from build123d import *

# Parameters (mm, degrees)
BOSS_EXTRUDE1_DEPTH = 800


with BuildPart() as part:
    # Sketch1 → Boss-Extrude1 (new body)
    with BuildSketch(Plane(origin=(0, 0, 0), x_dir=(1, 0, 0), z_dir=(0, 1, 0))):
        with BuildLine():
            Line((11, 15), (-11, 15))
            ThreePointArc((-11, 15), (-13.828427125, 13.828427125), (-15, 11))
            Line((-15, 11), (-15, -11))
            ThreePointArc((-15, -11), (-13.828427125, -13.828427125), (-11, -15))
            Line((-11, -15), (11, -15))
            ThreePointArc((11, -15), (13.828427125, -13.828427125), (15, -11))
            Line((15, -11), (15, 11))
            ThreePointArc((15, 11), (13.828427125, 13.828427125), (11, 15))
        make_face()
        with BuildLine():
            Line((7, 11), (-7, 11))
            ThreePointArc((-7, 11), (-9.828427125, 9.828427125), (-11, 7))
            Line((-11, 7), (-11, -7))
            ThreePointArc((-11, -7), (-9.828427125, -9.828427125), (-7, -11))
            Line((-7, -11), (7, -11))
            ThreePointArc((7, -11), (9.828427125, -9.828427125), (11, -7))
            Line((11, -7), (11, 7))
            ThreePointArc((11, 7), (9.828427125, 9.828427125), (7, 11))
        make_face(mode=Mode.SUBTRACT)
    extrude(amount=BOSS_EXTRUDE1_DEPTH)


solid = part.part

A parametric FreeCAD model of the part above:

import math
import FreeCAD as App
import Part
import Sketcher

doc = App.newDocument("Part")
params = doc.addObject("Spreadsheet::Sheet", "Params")
for row, (alias, value) in enumerate([
    ("sketch1_radius", "4 mm"),
    ("sketch1_width", "22 mm"),
    ("pad1_length", "800 mm"),
], start=1):
    params.set(f"A{row}", alias)
    params.set(f"B{row}", "=" + value)
    params.setAlias(f"B{row}", alias)

body = doc.addObject("PartDesign::Body", "Body")

sketch1 = body.newObject("Sketcher::SketchObject", "Sketch")
sketch1.AttachmentSupport = (doc.getObject("XZ_Plane"), [""])
sketch1.MapMode = "FlatFace"
sketch1.addGeometry(Part.LineSegment(App.Vector(11, -15, 0), App.Vector(-11, -15, 0)), False)
sketch1.addGeometry(Part.ArcOfCircle(Part.Circle(App.Vector(-11, -11, 0), App.Vector(0, 0, 1), 4), math.radians(180), math.radians(270)), False)
sketch1.addGeometry(Part.LineSegment(App.Vector(-15, -11, 0), App.Vector(-15, 11, 0)), False)
sketch1.addGeometry(Part.ArcOfCircle(Part.Circle(App.Vector(-11, 11, 0), App.Vector(0, 0, 1), 4), math.radians(90), math.radians(180)), False)
sketch1.addGeometry(Part.LineSegment(App.Vector(-11, 15, 0), App.Vector(11, 15, 0)), False)
sketch1.addGeometry(Part.ArcOfCircle(Part.Circle(App.Vector(11, 11, 0), App.Vector(0, 0, 1), 4), math.radians(0), math.radians(90)), False)
sketch1.addGeometry(Part.LineSegment(App.Vector(15, 11, 0), App.Vector(15, -11, 0)), False)
sketch1.addGeometry(Part.ArcOfCircle(Part.Circle(App.Vector(11, -11, 0), App.Vector(0, 0, 1), 4), math.radians(-90), math.radians(0)), False)
sketch1.addGeometry(Part.LineSegment(App.Vector(-7, -11, 0), App.Vector(7, -11, 0)), False)
sketch1.addGeometry(Part.ArcOfCircle(Part.Circle(App.Vector(7, -7, 0), App.Vector(0, 0, 1), 4), math.radians(-90), math.radians(0)), False)
sketch1.addGeometry(Part.LineSegment(App.Vector(11, -7, 0), App.Vector(11, 7, 0)), False)
sketch1.addGeometry(Part.ArcOfCircle(Part.Circle(App.Vector(7, 7, 0), App.Vector(0, 0, 1), 4), math.radians(0), math.radians(90)), False)
sketch1.addGeometry(Part.LineSegment(App.Vector(7, 11, 0), App.Vector(-7, 11, 0)), False)
sketch1.addGeometry(Part.ArcOfCircle(Part.Circle(App.Vector(-7, 7, 0), App.Vector(0, 0, 1), 4), math.radians(90), math.radians(180)), False)
sketch1.addGeometry(Part.LineSegment(App.Vector(-11, 7, 0), App.Vector(-11, -7, 0)), False)
sketch1.addGeometry(Part.ArcOfCircle(Part.Circle(App.Vector(-7, -7, 0), App.Vector(0, 0, 1), 4), math.radians(180), math.radians(270)), False)
sketch1.addConstraint(Sketcher.Constraint("Tangent", 0, 2, 1, 2))
sketch1.addConstraint(Sketcher.Constraint("Tangent", 1, 1, 2, 1))
sketch1.addConstraint(Sketcher.Constraint("Tangent", 2, 2, 3, 2))
sketch1.addConstraint(Sketcher.Constraint("Tangent", 3, 1, 4, 1))
sketch1.addConstraint(Sketcher.Constraint("Tangent", 4, 2, 5, 2))
sketch1.addConstraint(Sketcher.Constraint("Tangent", 5, 1, 6, 1))
sketch1.addConstraint(Sketcher.Constraint("Tangent", 6, 2, 7, 2))
sketch1.addConstraint(Sketcher.Constraint("Tangent", 7, 1, 0, 1))
sketch1.addConstraint(Sketcher.Constraint("Tangent", 8, 2, 9, 1))
sketch1.addConstraint(Sketcher.Constraint("Tangent", 9, 2, 10, 1))
sketch1.addConstraint(Sketcher.Constraint("Tangent", 10, 2, 11, 1))
sketch1.addConstraint(Sketcher.Constraint("Tangent", 11, 2, 12, 1))
sketch1.addConstraint(Sketcher.Constraint("Tangent", 12, 2, 13, 1))
sketch1.addConstraint(Sketcher.Constraint("Tangent", 13, 2, 14, 1))
sketch1.addConstraint(Sketcher.Constraint("Tangent", 14, 2, 15, 1))
sketch1.addConstraint(Sketcher.Constraint("Tangent", 15, 2, 8, 1))
sketch1.addConstraint(Sketcher.Constraint("Horizontal", 0))
sketch1.addConstraint(Sketcher.Constraint("Vertical", 2))
sketch1.addConstraint(Sketcher.Constraint("Horizontal", 4))
sketch1.addConstraint(Sketcher.Constraint("Vertical", 6))
sketch1.addConstraint(Sketcher.Constraint("Horizontal", 8))
sketch1.addConstraint(Sketcher.Constraint("Vertical", 10))
sketch1.addConstraint(Sketcher.Constraint("Horizontal", 12))
sketch1.addConstraint(Sketcher.Constraint("Vertical", 14))
sketch1.addConstraint(Sketcher.Constraint("Equal", 1, 3))
sketch1.addConstraint(Sketcher.Constraint("Equal", 3, 5))
sketch1.addConstraint(Sketcher.Constraint("Equal", 5, 7))
sketch1.addConstraint(Sketcher.Constraint("Equal", 7, 9))
sketch1.addConstraint(Sketcher.Constraint("Equal", 9, 11))
sketch1.addConstraint(Sketcher.Constraint("Equal", 11, 13))
sketch1.addConstraint(Sketcher.Constraint("Equal", 13, 15))
sketch1.addConstraint(Sketcher.Constraint("Symmetric", 1, 3, 5, 3, -1, 1))
sketch1.addConstraint(Sketcher.Constraint("Symmetric", 9, 3, 13, 3, -1, 1))
sketch1.addConstraint(Sketcher.Constraint("Horizontal", 6, 2, 8, 2))
sketch1.addConstraint(Sketcher.Constraint("Vertical", 7, 1, 9, 2))
sketch1.addConstraint(Sketcher.Constraint("Equal", 4, 2))
sketch1.addConstraint(Sketcher.Constraint("Radius", 1, 4.0))
sketch1.addConstraint(Sketcher.Constraint("DistanceX", 0, 2, 0, 1, 22.0))
sketch1.setExpression("Constraints[36]", "Params.sketch1_radius")
sketch1.setExpression("Constraints[37]", "Params.sketch1_width")
pad1 = body.newObject("PartDesign::Pad", "Pad")
pad1.Profile = sketch1
pad1.setExpression("Length", "Params.pad1_length")
pad1.Reversed = True

doc.recompute()
